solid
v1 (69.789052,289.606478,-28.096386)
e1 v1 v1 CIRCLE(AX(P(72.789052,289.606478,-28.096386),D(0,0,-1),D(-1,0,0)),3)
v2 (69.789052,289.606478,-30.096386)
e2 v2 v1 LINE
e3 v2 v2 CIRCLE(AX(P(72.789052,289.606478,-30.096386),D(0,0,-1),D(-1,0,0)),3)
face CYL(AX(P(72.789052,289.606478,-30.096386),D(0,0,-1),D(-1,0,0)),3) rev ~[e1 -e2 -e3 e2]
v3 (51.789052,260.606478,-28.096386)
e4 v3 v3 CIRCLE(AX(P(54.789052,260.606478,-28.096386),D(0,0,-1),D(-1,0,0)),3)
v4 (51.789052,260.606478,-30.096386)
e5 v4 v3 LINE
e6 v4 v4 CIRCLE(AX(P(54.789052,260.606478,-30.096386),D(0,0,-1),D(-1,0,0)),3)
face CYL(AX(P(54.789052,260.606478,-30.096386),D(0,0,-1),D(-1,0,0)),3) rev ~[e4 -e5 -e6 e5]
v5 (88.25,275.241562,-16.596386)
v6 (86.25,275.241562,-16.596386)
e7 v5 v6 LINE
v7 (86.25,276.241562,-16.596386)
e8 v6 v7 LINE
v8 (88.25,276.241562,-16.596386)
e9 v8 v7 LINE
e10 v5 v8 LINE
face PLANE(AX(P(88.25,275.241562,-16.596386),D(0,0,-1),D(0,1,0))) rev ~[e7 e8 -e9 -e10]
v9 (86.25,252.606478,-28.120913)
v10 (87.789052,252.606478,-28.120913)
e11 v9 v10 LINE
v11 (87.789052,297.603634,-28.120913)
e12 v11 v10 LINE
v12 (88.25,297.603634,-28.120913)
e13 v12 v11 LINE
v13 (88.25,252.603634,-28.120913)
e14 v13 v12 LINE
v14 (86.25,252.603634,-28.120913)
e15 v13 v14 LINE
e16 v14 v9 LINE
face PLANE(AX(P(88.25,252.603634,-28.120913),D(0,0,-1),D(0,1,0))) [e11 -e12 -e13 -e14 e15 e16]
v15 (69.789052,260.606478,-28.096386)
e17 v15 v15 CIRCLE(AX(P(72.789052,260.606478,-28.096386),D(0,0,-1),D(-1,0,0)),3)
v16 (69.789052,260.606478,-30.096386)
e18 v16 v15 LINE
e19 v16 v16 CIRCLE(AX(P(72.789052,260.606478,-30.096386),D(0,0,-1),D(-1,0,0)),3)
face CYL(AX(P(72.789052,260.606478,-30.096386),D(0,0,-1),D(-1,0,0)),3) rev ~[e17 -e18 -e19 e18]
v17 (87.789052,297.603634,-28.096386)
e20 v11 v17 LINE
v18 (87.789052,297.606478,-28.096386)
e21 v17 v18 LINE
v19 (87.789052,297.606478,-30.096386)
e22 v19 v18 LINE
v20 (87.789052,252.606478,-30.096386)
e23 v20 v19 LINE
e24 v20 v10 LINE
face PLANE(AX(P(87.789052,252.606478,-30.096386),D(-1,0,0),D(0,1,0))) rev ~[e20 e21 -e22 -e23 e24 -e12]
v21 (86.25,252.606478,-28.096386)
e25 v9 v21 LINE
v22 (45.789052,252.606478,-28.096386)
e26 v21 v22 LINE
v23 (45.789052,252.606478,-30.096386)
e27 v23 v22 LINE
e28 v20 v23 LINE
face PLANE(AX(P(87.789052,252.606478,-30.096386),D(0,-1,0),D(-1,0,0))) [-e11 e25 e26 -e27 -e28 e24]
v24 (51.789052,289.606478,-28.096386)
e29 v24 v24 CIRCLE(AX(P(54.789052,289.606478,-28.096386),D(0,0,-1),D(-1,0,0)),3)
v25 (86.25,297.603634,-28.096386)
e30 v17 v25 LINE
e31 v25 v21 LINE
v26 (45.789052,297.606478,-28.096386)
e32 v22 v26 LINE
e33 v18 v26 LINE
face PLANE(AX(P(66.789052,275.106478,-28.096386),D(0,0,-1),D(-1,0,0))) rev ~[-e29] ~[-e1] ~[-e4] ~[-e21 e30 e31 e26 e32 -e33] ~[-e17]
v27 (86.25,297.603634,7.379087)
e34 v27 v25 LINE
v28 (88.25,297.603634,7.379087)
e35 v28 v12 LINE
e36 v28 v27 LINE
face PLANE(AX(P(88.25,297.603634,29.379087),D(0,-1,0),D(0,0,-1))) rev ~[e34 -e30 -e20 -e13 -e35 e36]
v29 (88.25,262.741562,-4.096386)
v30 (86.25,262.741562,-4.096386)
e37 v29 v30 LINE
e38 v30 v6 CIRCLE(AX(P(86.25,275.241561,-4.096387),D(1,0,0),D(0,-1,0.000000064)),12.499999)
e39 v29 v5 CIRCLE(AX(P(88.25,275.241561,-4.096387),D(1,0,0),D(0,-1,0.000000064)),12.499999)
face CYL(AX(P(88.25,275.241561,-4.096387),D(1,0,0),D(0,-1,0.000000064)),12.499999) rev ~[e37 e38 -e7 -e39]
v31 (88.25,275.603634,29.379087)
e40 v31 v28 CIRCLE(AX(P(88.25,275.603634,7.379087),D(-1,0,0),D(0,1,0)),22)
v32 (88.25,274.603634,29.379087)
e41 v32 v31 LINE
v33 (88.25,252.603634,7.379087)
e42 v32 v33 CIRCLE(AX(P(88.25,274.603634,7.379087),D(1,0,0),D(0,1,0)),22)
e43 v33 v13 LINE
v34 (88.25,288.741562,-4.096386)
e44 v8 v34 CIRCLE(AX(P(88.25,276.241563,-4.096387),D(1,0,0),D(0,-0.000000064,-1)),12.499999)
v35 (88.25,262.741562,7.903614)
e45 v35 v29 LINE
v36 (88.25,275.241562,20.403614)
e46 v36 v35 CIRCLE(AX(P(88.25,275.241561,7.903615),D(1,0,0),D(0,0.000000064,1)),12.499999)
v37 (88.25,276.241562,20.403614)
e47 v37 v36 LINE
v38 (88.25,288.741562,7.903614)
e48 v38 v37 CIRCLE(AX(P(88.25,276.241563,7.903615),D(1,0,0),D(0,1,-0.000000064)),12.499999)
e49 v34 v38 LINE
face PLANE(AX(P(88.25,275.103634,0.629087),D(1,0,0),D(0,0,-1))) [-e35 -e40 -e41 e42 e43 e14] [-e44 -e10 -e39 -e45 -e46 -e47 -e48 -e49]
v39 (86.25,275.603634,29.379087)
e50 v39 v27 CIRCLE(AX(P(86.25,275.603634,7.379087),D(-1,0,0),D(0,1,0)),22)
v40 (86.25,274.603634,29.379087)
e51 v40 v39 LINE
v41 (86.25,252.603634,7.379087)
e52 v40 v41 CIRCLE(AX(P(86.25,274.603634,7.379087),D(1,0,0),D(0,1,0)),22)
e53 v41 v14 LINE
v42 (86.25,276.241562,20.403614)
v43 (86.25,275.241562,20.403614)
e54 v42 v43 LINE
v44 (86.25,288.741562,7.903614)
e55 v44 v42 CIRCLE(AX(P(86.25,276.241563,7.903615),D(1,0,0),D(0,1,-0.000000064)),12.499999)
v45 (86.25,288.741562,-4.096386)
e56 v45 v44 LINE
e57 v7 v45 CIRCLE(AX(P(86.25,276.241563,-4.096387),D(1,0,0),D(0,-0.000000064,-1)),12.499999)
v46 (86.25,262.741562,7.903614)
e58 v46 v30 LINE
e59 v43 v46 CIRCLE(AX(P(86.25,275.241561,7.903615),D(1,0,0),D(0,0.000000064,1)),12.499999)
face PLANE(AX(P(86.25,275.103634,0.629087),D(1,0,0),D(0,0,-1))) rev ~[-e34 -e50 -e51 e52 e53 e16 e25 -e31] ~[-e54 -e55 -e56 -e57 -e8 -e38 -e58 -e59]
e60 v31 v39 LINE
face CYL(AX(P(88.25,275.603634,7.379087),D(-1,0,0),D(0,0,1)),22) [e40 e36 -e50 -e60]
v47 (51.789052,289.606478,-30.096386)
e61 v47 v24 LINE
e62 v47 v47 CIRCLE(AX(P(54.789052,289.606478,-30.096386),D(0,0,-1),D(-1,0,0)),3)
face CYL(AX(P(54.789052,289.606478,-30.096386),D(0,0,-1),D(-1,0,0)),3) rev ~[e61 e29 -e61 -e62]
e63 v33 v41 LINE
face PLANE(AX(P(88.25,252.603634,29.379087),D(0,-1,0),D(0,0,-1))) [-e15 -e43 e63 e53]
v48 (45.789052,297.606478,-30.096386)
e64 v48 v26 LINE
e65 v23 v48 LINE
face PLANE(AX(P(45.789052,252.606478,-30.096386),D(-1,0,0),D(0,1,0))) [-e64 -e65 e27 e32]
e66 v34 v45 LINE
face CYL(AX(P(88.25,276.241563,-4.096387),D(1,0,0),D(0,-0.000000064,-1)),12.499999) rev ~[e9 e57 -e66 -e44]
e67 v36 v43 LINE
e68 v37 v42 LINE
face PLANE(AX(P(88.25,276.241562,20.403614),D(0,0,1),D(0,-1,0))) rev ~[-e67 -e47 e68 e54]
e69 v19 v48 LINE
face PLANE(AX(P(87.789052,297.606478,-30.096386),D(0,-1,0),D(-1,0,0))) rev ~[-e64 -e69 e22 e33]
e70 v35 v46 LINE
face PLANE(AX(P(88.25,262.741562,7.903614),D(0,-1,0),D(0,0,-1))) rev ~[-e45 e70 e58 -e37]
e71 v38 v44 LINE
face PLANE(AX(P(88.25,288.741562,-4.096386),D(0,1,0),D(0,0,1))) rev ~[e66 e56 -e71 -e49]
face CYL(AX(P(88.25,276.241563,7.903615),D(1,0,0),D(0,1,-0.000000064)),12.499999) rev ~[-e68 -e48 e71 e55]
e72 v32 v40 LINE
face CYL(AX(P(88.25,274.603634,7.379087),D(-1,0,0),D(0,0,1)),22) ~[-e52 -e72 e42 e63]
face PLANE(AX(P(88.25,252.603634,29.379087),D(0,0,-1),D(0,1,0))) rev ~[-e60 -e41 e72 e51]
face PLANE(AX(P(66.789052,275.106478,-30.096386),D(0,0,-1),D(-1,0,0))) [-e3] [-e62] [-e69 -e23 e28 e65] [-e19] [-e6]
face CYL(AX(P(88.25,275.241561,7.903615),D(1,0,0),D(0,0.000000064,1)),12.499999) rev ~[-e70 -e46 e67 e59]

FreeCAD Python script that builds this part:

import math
import FreeCAD as App
import Part
import Sketcher

V = App.Vector
Q = App.Units.Quantity


def edges_at(feature, points):
    """Names of the edges that pass closest to the given points."""
    edges = feature.Shape.Edges
    near = lambda p: min(range(len(edges)), key=lambda i: edges[i].distToShape(Part.Vertex(*p))[0])
    return sorted({f"Edge{near(p) + 1}" for p in points})

doc = App.newDocument("Part")
body = doc.addObject("PartDesign::Body", "Body")

sketch1 = body.newObject("Sketcher::SketchObject", "Sketch")
sketch1.AttachmentSupport = (doc.getObject("YZ_Plane"), [""])
sketch1.MapMode = "FlatFace"
sketch1.AttachmentOffset = App.Placement(V(0, 0, -40), App.Rotation())
sketch1.addGeometry([
    Part.LineSegment(V(0.5, 16.9, 0), V(0.5, -28.1, 0)),
    Part.LineSegment(V(0.5, -28.1, 0), V(42.5, -28.1, 0)),
    Part.LineSegment(V(42.5, -28.1, 0), V(42.5, 16.9, 0)),
    Part.LineSegment(V(42.5, 16.9, 0), V(0.5, 16.9, 0)),
    Part.Circle(V(15.5, -20.1, 0), V(0, 0, 1), 3),
    Part.Circle(V(33.5, -20.1, 0), V(0, 0, 1), 3),
    Part.Circle(V(15.5, 8.9, 0), V(0, 0, 1), 3),
    Part.Circle(V(33.5, 8.9, 0), V(0, 0, 1), 3),
], False)
sketch1.addConstraint([
    Sketcher.Constraint("Coincident", 0, 2, 1, 1),
    Sketcher.Constraint("Coincident", 1, 2, 2, 1),
    Sketcher.Constraint("Coincident", 2, 2, 3, 1),
    Sketcher.Constraint("Coincident", 3, 2, 0, 1),
    Sketcher.Constraint("Vertical", 0),
    Sketcher.Constraint("Horizontal", 1),
    Sketcher.Constraint("Vertical", 2),
    Sketcher.Constraint("Horizontal", 3),
    Sketcher.Constraint("Equal", 4, 5),
    Sketcher.Constraint("Equal", 5, 6),
    Sketcher.Constraint("Equal", 6, 7),
    Sketcher.Constraint("Horizontal", 4, 3, 5, 3),
    Sketcher.Constraint("Horizontal", 6, 3, 7, 3),
    Sketcher.Constraint("Vertical", 4, 3, 6, 3),
    Sketcher.Constraint("Vertical", 5, 3, 7, 3),
    Sketcher.Constraint("Diameter", 4, Q("6 mm")),
    Sketcher.Constraint("DistanceX", 1, 1, 1, 2, Q("42 mm")),
    Sketcher.Constraint("DistanceY", 0, 2, 0, 1, Q("45 mm")),
    Sketcher.Constraint("DistanceX", 4, 3, 5, 3, Q("18 mm")),
    Sketcher.Constraint("DistanceY", 4, 3, 6, 3, Q("29 mm")),
    Sketcher.Constraint("DistanceX", 0, 2, 4, 3, Q("15 mm")),
    Sketcher.Constraint("DistanceY", 0, 2, 4, 3, Q("8 mm")),
    Sketcher.Constraint("DistanceX", -1, 1, 5, 3, Q("33.460948 mm")),
    Sketcher.Constraint("DistanceY", 4, 3, -1, 1, Q("20.135084 mm")),
])
pad1 = body.newObject("PartDesign::Pad", "Pad")
pad1.Profile = sketch1
pad1.Length = 2
pad1.Reversed = True

sketch2 = body.newObject("Sketcher::SketchObject", "Sketch001")
sketch2.AttachmentSupport = (doc.getObject("XZ_Plane"), [""])
sketch2.MapMode = "FlatFace"
sketch2.addGeometry([
    Part.LineSegment(V(-99.5, 16.9, 0), V(-99.5, -28.1, 0)),
    Part.LineSegment(V(-99.5, -28.1, 0), V(-42, -28.1, 0)),
    Part.LineSegment(V(-42, -28.1, 0), V(-42, 16.9, 0)),
    Part.LineSegment(V(-42, 16.9, 0), V(-99.5, 16.9, 0)),
    Part.LineSegment(V(-66, -18, 0), V(-78, -18, 0)),
    Part.ArcOfCircle(Part.Circle(V(-78, -5.5, 0), V(0, 0, 1), 12.5), math.radians(180), math.radians(270)),
    Part.LineSegment(V(-90.5, -5.5, 0), V(-90.5, -4.5, 0)),
    Part.ArcOfCircle(Part.Circle(V(-78, -4.5, 0), V(0, 0, 1), 12.5), math.radians(90), math.radians(180)),
    Part.LineSegment(V(-78, 8, 0), V(-66, 8, 0)),
    Part.ArcOfCircle(Part.Circle(V(-66, -4.5, 0), V(0, 0, 1), 12.5), math.radians(0), math.radians(90)),
    Part.LineSegment(V(-53.5, -4.5, 0), V(-53.5, -5.5, 0)),
    Part.ArcOfCircle(Part.Circle(V(-66, -5.5, 0), V(0, 0, 1), 12.5), math.radians(-90), math.radians(0)),
], False)
sketch2.addConstraint([
    Sketcher.Constraint("Coincident", 0, 2, 1, 1),
    Sketcher.Constraint("Coincident", 1, 2, 2, 1),
    Sketcher.Constraint("Coincident", 2, 2, 3, 1),
    Sketcher.Constraint("Coincident", 3, 2, 0, 1),
    Sketcher.Constraint("Tangent", 4, 2, 5, 2),
    Sketcher.Constraint("Tangent", 5, 1, 6, 1),
    Sketcher.Constraint("Tangent", 6, 2, 7, 2),
    Sketcher.Constraint("Tangent", 7, 1, 8, 1),
    Sketcher.Constraint("Tangent", 8, 2, 9, 2),
    Sketcher.Constraint("Tangent", 9, 1, 10, 1),
    Sketcher.Constraint("Tangent", 10, 2, 11, 2),
    Sketcher.Constraint("Tangent", 11, 1, 4, 1),
    Sketcher.Constraint("Vertical", 0),
    Sketcher.Constraint("Horizontal", 1),
    Sketcher.Constraint("Vertical", 2),
    Sketcher.Constraint("Horizontal", 3),
    Sketcher.Constraint("Horizontal", 4),
    Sketcher.Constraint("Vertical", 6),
    Sketcher.Constraint("Horizontal", 8),
    Sketcher.Constraint("Vertical", 10),
    Sketcher.Constraint("Equal", 5, 7),
    Sketcher.Constraint("Equal", 7, 9),
    Sketcher.Constraint("Equal", 9, 11),
    Sketcher.Constraint("Radius", 5, Q("12.499999 mm")),
    Sketcher.Constraint("DistanceX", 4, 2, 4, 1, Q("12 mm")),
    Sketcher.Constraint("DistanceY", 0, 2, 0, 1, Q("45 mm")),
    Sketcher.Constraint("DistanceY", 6, 1, 6, 2, Q("1 mm")),
    Sketcher.Constraint("DistanceX", 1, 1, 1, 2, Q("57.5 mm")),
    Sketcher.Constraint("DistanceX", 5, 3, -1, 1, Q("78.000001 mm")),
    Sketcher.Constraint("DistanceY", 4, 2, -1, 1, Q("18 mm")),
    Sketcher.Constraint("DistanceY", 0, 2, 7, 3, Q("23.637929 mm")),
    Sketcher.Constraint("DistanceX", 0, 2, -1, 1, Q("99.475473 mm")),
])
pad2 = body.newObject("PartDesign::Pad", "Pad001")
pad2.Profile = sketch2
pad2.Length = 2
pad2.Reversed = True
doc.recompute()

fillet = body.newObject("PartDesign::Fillet", "Fillet")
fillet.Base = (pad2, edges_at(pad2, [(-99.475, 1, -28.138), (-99.475, 1, 16.862)]))
fillet.Radius = 22
body2 = doc.addObject("PartDesign::Body", "Body001")
doc.recompute()

body.Placement = App.Placement(V(0, 0, 0), App.Rotation(V(0, 1, 0), 90))
boolean = body2.newObject("PartDesign::Boolean", "Boolean")
boolean.Type = "Fuse"
boolean.addObjects([body])
body3 = doc.addObject("PartDesign::Body", "Body002")
doc.recompute()

body2.Placement = App.Placement(V(88.25, 280.741562, -70.096386), App.Rotation(V(0, 0, 1), 90))
boolean2 = body3.newObject("PartDesign::Boolean", "Boolean001")
boolean2.Type = "Fuse"
boolean2.addObjects([body2])

doc.recompute()
